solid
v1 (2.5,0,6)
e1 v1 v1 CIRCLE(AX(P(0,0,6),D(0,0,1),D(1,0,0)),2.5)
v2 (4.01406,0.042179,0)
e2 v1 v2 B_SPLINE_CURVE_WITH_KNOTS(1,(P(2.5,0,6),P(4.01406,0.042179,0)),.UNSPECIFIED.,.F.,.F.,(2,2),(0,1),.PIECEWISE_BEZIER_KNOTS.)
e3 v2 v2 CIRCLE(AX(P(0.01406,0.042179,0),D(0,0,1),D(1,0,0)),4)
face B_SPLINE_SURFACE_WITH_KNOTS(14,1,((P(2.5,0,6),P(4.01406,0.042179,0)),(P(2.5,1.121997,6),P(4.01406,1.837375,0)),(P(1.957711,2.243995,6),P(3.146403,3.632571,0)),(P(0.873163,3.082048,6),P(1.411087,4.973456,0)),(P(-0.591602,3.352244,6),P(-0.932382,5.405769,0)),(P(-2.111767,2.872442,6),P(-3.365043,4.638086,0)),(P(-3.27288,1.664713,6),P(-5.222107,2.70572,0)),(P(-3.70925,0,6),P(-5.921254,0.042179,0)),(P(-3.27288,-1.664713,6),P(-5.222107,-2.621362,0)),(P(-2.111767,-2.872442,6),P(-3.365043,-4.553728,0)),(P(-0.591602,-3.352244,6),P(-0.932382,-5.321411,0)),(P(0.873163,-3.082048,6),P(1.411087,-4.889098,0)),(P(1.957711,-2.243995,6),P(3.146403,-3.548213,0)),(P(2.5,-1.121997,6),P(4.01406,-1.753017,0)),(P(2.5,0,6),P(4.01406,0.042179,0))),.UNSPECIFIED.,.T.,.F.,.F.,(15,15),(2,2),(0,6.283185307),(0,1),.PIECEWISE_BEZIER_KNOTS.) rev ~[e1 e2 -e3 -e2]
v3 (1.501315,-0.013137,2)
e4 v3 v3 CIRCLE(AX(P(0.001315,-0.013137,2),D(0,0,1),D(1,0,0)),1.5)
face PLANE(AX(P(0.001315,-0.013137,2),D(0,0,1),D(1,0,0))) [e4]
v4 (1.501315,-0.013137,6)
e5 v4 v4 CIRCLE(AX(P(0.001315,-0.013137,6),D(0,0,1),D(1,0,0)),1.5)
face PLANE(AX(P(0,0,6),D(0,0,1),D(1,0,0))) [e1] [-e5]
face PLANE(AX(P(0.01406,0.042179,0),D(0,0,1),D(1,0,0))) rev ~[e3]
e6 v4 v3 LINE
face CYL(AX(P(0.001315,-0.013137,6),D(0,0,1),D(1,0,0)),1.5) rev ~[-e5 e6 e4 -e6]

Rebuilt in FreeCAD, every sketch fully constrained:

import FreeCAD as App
import Part
import Sketcher

V = App.Vector
Q = App.Units.Quantity

doc = App.newDocument("Part")
body = doc.addObject("PartDesign::Body", "Body")

sketch1 = doc.addObject("Sketcher::SketchObject", "Sketch")
body.addObject(sketch1)
sketch1.AttachmentSupport = (doc.XY_Plane, [""])
sketch1.MapMode = "FlatFace"
sketch1.addGeometry([
    Part.Circle(V(0, 0, 0), V(0, 0, 1), 2.5),
    Part.Circle(V(0, 0, 0), V(0, 0, 1), 1.5),
], False)
sketch1.addConstraint([
    Sketcher.Constraint("Coincident", 0, 3, -1, 1),
    Sketcher.Constraint("Coincident", 1, 3, -1, 1),
    Sketcher.Constraint("Diameter", 0, Q("5 mm")),
    Sketcher.Constraint("Diameter", 1, Q("3 mm")),
])
pad1 = doc.addObject("PartDesign::Pad", "Pad")
body.addObject(pad1)
pad1.Profile = sketch1
pad1.Length = 6

sketch2 = doc.addObject("Sketcher::SketchObject", "Sketch001")
body.addObject(sketch2)
sketch2.AttachmentSupport = (doc.XY_Plane, [""])
sketch2.MapMode = "FlatFace"
sketch2.AttachmentOffset = App.Placement(V(0, 0, 6), App.Rotation())
sketch2.addGeometry(Part.Circle(V(0, 0, 0), V(0, 0, 1), 2.5), False)
sketch2.addConstraint([
    Sketcher.Constraint("Coincident", 0, 3, -1, 1),
    Sketcher.Constraint("Diameter", 0, Q("5 mm")),
])

sketch3 = doc.addObject("Sketcher::SketchObject", "Sketch002")
body.addObject(sketch3)
sketch3.AttachmentSupport = (doc.XY_Plane, [""])
sketch3.MapMode = "FlatFace"
sketch3.addGeometry(Part.Circle(V(0, 0, 0), V(0, 0, 1), 4), False)
sketch3.addConstraint([
    Sketcher.Constraint("Diameter", 0, Q("8 mm")),
    Sketcher.Constraint("DistanceX", -1, 1, 0, 3, Q("0.01406 mm")),
    Sketcher.Constraint("DistanceY", -1, 1, 0, 3, Q("0.042179 mm")),
])

additiveloft = doc.addObject("PartDesign::AdditiveLoft", "AdditiveLoft")
body.addObject(additiveloft)
additiveloft.Profile = sketch2
additiveloft.Sections = [sketch3]

sketch4 = doc.addObject("Sketcher::SketchObject", "Sketch003")
body.addObject(sketch4)
sketch4.AttachmentSupport = (doc.XY_Plane, [""])
sketch4.MapMode = "FlatFace"
sketch4.AttachmentOffset = App.Placement(V(0, 0, 6), App.Rotation())
sketch4.addGeometry(Part.Circle(V(0, 0, 0), V(0, 0, 1), 1.5), False)
sketch4.addConstraint([
    Sketcher.Constraint("Diameter", 0, Q("3 mm")),
    Sketcher.Constraint("DistanceX", -1, 1, 0, 3, Q("0.001315 mm")),
    Sketcher.Constraint("DistanceY", 0, 3, -1, 1, Q("0.013137 mm")),
])
pocket1 = doc.addObject("PartDesign::Pocket", "Pocket")
body.addObject(pocket1)
pocket1.Profile = sketch4
pocket1.Length = 4

doc.recompute()
